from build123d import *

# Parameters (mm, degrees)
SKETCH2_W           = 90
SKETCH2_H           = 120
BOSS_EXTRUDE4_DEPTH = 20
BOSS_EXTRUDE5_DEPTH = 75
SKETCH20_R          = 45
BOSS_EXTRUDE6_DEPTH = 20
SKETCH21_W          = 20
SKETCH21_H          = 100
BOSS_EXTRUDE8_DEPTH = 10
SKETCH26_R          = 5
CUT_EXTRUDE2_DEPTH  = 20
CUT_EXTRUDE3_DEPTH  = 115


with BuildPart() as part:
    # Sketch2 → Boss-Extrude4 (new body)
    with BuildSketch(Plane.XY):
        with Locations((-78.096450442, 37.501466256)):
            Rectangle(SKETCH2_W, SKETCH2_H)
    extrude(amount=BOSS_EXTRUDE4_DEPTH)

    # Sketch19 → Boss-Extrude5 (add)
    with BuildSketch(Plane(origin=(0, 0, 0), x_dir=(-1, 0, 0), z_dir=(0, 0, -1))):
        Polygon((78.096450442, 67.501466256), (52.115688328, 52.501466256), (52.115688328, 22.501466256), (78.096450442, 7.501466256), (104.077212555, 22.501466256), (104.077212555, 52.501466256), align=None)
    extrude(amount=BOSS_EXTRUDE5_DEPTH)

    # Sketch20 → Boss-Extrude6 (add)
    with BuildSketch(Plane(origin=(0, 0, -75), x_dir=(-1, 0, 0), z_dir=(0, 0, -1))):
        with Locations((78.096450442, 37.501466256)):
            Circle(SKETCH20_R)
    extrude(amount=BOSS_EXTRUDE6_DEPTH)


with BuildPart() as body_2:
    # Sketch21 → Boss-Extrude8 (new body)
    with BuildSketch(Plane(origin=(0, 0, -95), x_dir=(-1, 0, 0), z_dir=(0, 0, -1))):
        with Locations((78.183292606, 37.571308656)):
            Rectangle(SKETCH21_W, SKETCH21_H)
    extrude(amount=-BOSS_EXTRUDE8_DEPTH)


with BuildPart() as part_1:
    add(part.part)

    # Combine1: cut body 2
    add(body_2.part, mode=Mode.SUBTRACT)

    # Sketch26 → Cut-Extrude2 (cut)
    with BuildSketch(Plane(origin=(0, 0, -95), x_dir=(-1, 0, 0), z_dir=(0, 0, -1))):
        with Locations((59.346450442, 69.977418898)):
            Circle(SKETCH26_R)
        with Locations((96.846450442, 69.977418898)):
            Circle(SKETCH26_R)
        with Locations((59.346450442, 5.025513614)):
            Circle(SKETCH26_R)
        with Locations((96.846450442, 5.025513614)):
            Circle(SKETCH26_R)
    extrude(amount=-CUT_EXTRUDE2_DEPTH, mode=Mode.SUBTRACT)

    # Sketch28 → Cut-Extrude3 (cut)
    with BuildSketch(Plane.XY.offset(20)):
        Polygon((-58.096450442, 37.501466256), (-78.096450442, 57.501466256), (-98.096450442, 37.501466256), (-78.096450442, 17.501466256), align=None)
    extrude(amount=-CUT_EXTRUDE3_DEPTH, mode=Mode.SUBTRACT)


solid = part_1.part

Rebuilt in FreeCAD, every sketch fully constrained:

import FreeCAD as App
import Part
import Sketcher
from FreeCAD import Vector
Q = App.Units.Quantity


def add_polygon(sketch, points):
    """Adds a closed chain of lines whose ends are joined by coincident constraints."""
    first, n = sketch.GeometryCount, len(points)
    for a, b in zip(points, points[1:] + points[:1]):
        sketch.addGeometry(Part.LineSegment(App.Vector(*a, 0), App.Vector(*b, 0)), False)
    for i in range(n):
        sketch.addConstraint(Sketcher.Constraint("Coincident", first + i, 2, first + (i + 1) % n, 1))

doc = App.newDocument("Part")
body = doc.addObject("PartDesign::Body", "Body")

# Sketch on XY plane
sketch1 = doc.addObject("Sketcher::SketchObject", "Sketch")
body.addObject(sketch1)
sketch1.AttachmentSupport = (doc.XY_Plane, [""])
sketch1.MapMode = "FlatFace"
add_polygon(sketch1, [(-123, 98), (-123, -22), (-33, -22), (-33, 98)])  # lines 0-3
sketch1.addConstraint([
    Sketcher.Constraint("Vertical", 0),
    Sketcher.Constraint("Horizontal", 1),
    Sketcher.Constraint("Vertical", 2),
    Sketcher.Constraint("Horizontal", 3),
    Sketcher.Constraint("DistanceX", 1, 1, 1, 2, Q("90 mm")),
    Sketcher.Constraint("DistanceY", 0, 2, 0, 1, Q("120 mm")),
    Sketcher.Constraint("DistanceX", 0, 2, -1, 1, Q("123.09645 mm")),
    Sketcher.Constraint("DistanceY", 0, 2, -1, 1, Q("22.498534 mm")),
])
pad1 = doc.addObject("PartDesign::Pad", "Pad")
body.addObject(pad1)
pad1.Profile = sketch1
pad1.Length = 20

# Sketch on XY plane
sketch2 = doc.addObject("Sketcher::SketchObject", "Sketch001")
body.addObject(sketch2)
sketch2.AttachmentSupport = (doc.XY_Plane, [""])
sketch2.MapMode = "FlatFace"
add_polygon(sketch2, [(-78, 68), (-52, 53), (-52, 23), (-78, 8), (-104, 23), (-104, 53)])  # lines 0-5
sketch2.addConstraint([
    Sketcher.Constraint("Vertical", 1),
    Sketcher.Constraint("Vertical", 4),
    Sketcher.Constraint("Parallel", 0, 3),
    Sketcher.Constraint("Parallel", 2, 5),
    Sketcher.Constraint("Horizontal", 1, 2, 3, 2),
    Sketcher.Constraint("Horizontal", 0, 2, 4, 2),
    Sketcher.Constraint("Vertical", 2, 2, 5, 2),
    Sketcher.Constraint("DistanceY", 1, 2, 1, 1, Q("30 mm")),
    Sketcher.Constraint("Angle", 0, Q("-30 deg")),
    Sketcher.Constraint("Distance", 0, Q("30 mm")),
    Sketcher.Constraint("DistanceX", 0, 2, -1, 1, Q("52.115688 mm")),
    Sketcher.Constraint("DistanceY", -1, 1, 0, 2, Q("52.501466 mm")),
])
pad2 = doc.addObject("PartDesign::Pad", "Pad001")
body.addObject(pad2)
pad2.Profile = sketch2
pad2.Length = 75
pad2.Reversed = True

# Sketch on XY plane
sketch3 = doc.addObject("Sketcher::SketchObject", "Sketch002")
body.addObject(sketch3)
sketch3.AttachmentSupport = (doc.XY_Plane, [""])
sketch3.MapMode = "FlatFace"
sketch3.AttachmentOffset = App.Placement(Vector(0, 0, -75), App.Rotation())
sketch3.addGeometry(Part.Circle(Vector(-78, 38, 0), Vector(0, 0, 1), 45), False)
sketch3.addConstraint([
    Sketcher.Constraint("Diameter", 0, Q("90 mm")),
    Sketcher.Constraint("DistanceX", 0, 3, -1, 1, Q("78.09645 mm")),
    Sketcher.Constraint("DistanceY", -1, 1, 0, 3, Q("37.501466 mm")),
])
pad3 = doc.addObject("PartDesign::Pad", "Pad002")
body.addObject(pad3)
pad3.Profile = sketch3
pad3.Length = 20
pad3.Reversed = True
body2 = doc.addObject("PartDesign::Body", "Body001")

# Sketch on XY plane
sketch4 = doc.addObject("Sketcher::SketchObject", "Sketch003")
body2.addObject(sketch4)
sketch4.AttachmentSupport = (doc.getObject("XY_Plane001"), [""])
sketch4.MapMode = "FlatFace"
sketch4.AttachmentOffset = App.Placement(Vector(0, 0, -95), App.Rotation())
add_polygon(sketch4, [(-68, 88), (-68, -12), (-88, -12), (-88, 88)])  # lines 0-3
sketch4.addConstraint([
    Sketcher.Constraint("Vertical", 0),
    Sketcher.Constraint("Horizontal", 1),
    Sketcher.Constraint("Vertical", 2),
    Sketcher.Constraint("Horizontal", 3),
    Sketcher.Constraint("DistanceX", 1, 2, 1, 1, Q("20 mm")),
    Sketcher.Constraint("DistanceY", 0, 2, 0, 1, Q("100 mm")),
    Sketcher.Constraint("DistanceY", 0, 2, -1, 1, Q("12.428691 mm")),
    Sketcher.Constraint("DistanceX", 0, 2, -1, 1, Q("68.183293 mm")),
])
pad4 = doc.addObject("PartDesign::Pad", "Pad003")
body2.addObject(pad4)
pad4.Profile = sketch4
pad4.Length = 10
doc.recompute()

boolean = doc.addObject("PartDesign::Boolean", "Boolean")
body.addObject(boolean)
boolean.Type = "Cut"
boolean.addObjects([body2])

# Sketch on XY plane
sketch5 = doc.addObject("Sketcher::SketchObject", "Sketch004")
body.addObject(sketch5)
sketch5.AttachmentSupport = (doc.XY_Plane, [""])
sketch5.MapMode = "FlatFace"
sketch5.AttachmentOffset = App.Placement(Vector(0, 0, -95), App.Rotation())
sketch5.addGeometry([
    Part.Circle(Vector(-59, 70, 0), Vector(0, 0, 1), 5),
    Part.Circle(Vector(-97, 70, 0), Vector(0, 0, 1), 5),
    Part.Circle(Vector(-59, 5, 0), Vector(0, 0, 1), 5),
    Part.Circle(Vector(-97, 5, 0), Vector(0, 0, 1), 5),
], False)
sketch5.addConstraint([
    Sketcher.Constraint("Equal", 0, 1),
    Sketcher.Constraint("Equal", 1, 2),
    Sketcher.Constraint("Equal", 2, 3),
    Sketcher.Constraint("Horizontal", 0, 3, 1, 3),
    Sketcher.Constraint("Horizontal", 2, 3, 3, 3),
    Sketcher.Constraint("Vertical", 0, 3, 2, 3),
    Sketcher.Constraint("Vertical", 1, 3, 3, 3),
    Sketcher.Constraint("Diameter", 0, Q("10 mm")),
    Sketcher.Constraint("DistanceX", 1, 3, 0, 3, Q("37.5 mm")),
    Sketcher.Constraint("DistanceX", 0, 3, -1, 1, Q("59.34645 mm")),
    Sketcher.Constraint("DistanceY", -1, 1, 0, 3, Q("69.977419 mm")),
    Sketcher.Constraint("DistanceY", -1, 1, 2, 3, Q("5.025514 mm")),
])
pocket1 = doc.addObject("PartDesign::Pocket", "Pocket")
body.addObject(pocket1)
pocket1.Profile = sketch5
pocket1.Length = 20
pocket1.Reversed = True

# Sketch on XY plane
sketch6 = doc.addObject("Sketcher::SketchObject", "Sketch005")
body.addObject(sketch6)
sketch6.AttachmentSupport = (doc.XY_Plane, [""])
sketch6.MapMode = "FlatFace"
sketch6.AttachmentOffset = App.Placement(Vector(0, 0, 20), App.Rotation())
add_polygon(sketch6, [(-58, 38), (-78, 58), (-98, 38), (-78, 18)])  # lines 0-3
sketch6.addConstraint([
    Sketcher.Constraint("Perpendicular", 0, 1),
    Sketcher.Constraint("Perpendicular", 1, 2),
    Sketcher.Constraint("Perpendicular", 2, 3),
    Sketcher.Constraint("Horizontal", 1, 2, 3, 2),
    Sketcher.Constraint("Vertical", 0, 2, 2, 2),
    Sketcher.Constraint("DistanceX", 1, 2, 0, 2, Q("20 mm")),
    Sketcher.Constraint("DistanceX", 0, 2, -1, 1, Q("78.09645 mm")),
    Sketcher.Constraint("DistanceY", -1, 1, 0, 2, Q("57.501466 mm")),
])
pocket2 = doc.addObject("PartDesign::Pocket", "Pocket001")
body.addObject(pocket2)
pocket2.Profile = sketch6
pocket2.Length = 115

doc.recompute()
